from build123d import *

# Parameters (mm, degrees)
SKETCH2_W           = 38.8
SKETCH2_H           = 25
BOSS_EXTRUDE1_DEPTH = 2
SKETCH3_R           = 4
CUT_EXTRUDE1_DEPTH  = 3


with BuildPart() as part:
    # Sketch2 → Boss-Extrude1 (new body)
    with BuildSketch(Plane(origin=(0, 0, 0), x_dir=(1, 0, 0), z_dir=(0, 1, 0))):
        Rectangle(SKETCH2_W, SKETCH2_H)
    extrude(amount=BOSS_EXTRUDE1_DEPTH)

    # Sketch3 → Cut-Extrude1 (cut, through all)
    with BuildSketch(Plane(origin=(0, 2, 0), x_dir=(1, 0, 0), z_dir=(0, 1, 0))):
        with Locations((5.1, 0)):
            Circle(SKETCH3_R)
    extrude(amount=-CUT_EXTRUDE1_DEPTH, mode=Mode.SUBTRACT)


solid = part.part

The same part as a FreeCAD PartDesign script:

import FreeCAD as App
import Part
import Sketcher
Q = App.Units.Quantity

doc = App.newDocument("Part")
body = doc.addObject("PartDesign::Body", "Body")

# Sketch on XZ plane
sketch1 = body.newObject("Sketcher::SketchObject", "Sketch")
sketch1.AttachmentSupport = (doc.getObject("XZ_Plane"), [""])
sketch1.MapMode = "FlatFace"
sketch1.addGeometry(Part.LineSegment(App.Vector(-19, -12, 0), App.Vector(-19, 12, 0)), False)
sketch1.addGeometry(Part.LineSegment(App.Vector(-19, 12, 0), App.Vector(19, 12, 0)), False)
sketch1.addGeometry(Part.LineSegment(App.Vector(19, 12, 0), App.Vector(19, -12, 0)), False)
sketch1.addGeometry(Part.LineSegment(App.Vector(19, -12, 0), App.Vector(-19, -12, 0)), False)
sketch1.addConstraint(Sketcher.Constraint("Coincident", 0, 2, 1, 1))
sketch1.addConstraint(Sketcher.Constraint("Coincident", 1, 2, 2, 1))
sketch1.addConstraint(Sketcher.Constraint("Coincident", 2, 2, 3, 1))
sketch1.addConstraint(Sketcher.Constraint("Coincident", 3, 2, 0, 1))
sketch1.addConstraint(Sketcher.Constraint("Vertical", 0))
sketch1.addConstraint(Sketcher.Constraint("Horizontal", 1))
sketch1.addConstraint(Sketcher.Constraint("Vertical", 2))
sketch1.addConstraint(Sketcher.Constraint("Horizontal", 3))
sketch1.addConstraint(Sketcher.Constraint("Symmetric", 0, 2, 2, 2, -1, 1))
sketch1.addConstraint(Sketcher.Constraint("DistanceY", 0, 1, 0, 2, Q("25 mm")))
sketch1.addConstraint(Sketcher.Constraint("DistanceX", 1, 1, 1, 2, Q("38.8 mm")))
pad1 = body.newObject("PartDesign::Pad", "Pad")
pad1.Profile = sketch1
pad1.Length = 2
pad1.Reversed = True

# Sketch on XZ plane
sketch2 = body.newObject("Sketcher::SketchObject", "Sketch001")
sketch2.AttachmentSupport = (doc.getObject("XZ_Plane"), [""])
sketch2.MapMode = "FlatFace"
sketch2.AttachmentOffset = App.Placement(App.Vector(0, 0, -2), App.Rotation())
sketch2.addGeometry(Part.Circle(App.Vector(5.1, 0, 0), App.Vector(0, 0, 1), 4), False)
sketch2.addConstraint(Sketcher.Constraint("PointOnObject", 0, 3, -1))
sketch2.addConstraint(Sketcher.Constraint("Diameter", 0, Q("8 mm")))
sketch2.addConstraint(Sketcher.Constraint("DistanceX", -1, 1, 0, 3, Q("5.1 mm")))
pocket1 = body.newObject("PartDesign::Pocket", "Pocket")
pocket1.Profile = sketch2
pocket1.Type = "ThroughAll"
pocket1.Reversed = True

doc.recompute()
